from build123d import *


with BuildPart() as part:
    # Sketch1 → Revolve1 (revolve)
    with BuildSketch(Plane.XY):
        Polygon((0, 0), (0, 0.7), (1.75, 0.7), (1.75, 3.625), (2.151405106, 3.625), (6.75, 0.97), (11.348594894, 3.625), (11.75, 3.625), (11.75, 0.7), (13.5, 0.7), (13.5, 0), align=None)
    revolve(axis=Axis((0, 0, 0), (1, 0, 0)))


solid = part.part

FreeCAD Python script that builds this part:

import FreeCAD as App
import Part
import Sketcher

V = App.Vector
Q = App.Units.Quantity


def add_polygon(sketch, points):
    """Adds a closed chain of lines whose ends are joined by coincident constraints."""
    first, n = sketch.GeometryCount, len(points)
    for a, b in zip(points, points[1:] + points[:1]):
        sketch.addGeometry(Part.LineSegment(App.Vector(*a, 0), App.Vector(*b, 0)), False)
    for i in range(n):
        sketch.addConstraint(Sketcher.Constraint("Coincident", first + i, 2, first + (i + 1) % n, 1))

doc = App.newDocument("Part")
body = doc.addObject("PartDesign::Body", "Body")

# Sketch on XY plane
sketch1 = body.newObject("Sketcher::SketchObject", "Sketch")
sketch1.AttachmentSupport = (doc.getObject("XY_Plane"), [""])
sketch1.MapMode = "FlatFace"
add_polygon(sketch1, [(0, 0.7), (0, 0), (13.5, 0), (13.5, 0.7), (11.75, 0.7), (11.75, 3.62), (11.35, 3.62), (6.75, 0.97), (2.15, 3.62), (1.75, 3.62), (1.75, 0.7)])  # lines 0-10
sketch1.addConstraint([
    Sketcher.Constraint("Vertical", 0),
    Sketcher.Constraint("Horizontal", 1),
    Sketcher.Constraint("Vertical", 2),
    Sketcher.Constraint("Horizontal", 3),
    Sketcher.Constraint("Vertical", 4),
    Sketcher.Constraint("Horizontal", 5),
    Sketcher.Constraint("Horizontal", 8),
    Sketcher.Constraint("Vertical", 9),
    Sketcher.Constraint("Horizontal", 10),
    Sketcher.Constraint("Coincident", 0, 2, -1, 1),
    Sketcher.Constraint("Horizontal", 5, 2, 7, 2),
    Sketcher.Constraint("Horizontal", 3, 2, 9, 2),
    Sketcher.Constraint("Equal", 5, 8),
    Sketcher.Constraint("Equal", 3, 10),
    Sketcher.Constraint("Equal", 6, 7),
    Sketcher.Constraint("Angle", 6, Q("-150 deg")),
    Sketcher.Constraint("DistanceX", 1, 1, 1, 2, 13.5),
    Sketcher.Constraint("DistanceY", 0, 2, 0, 1, 0.7),
    Sketcher.Constraint("DistanceX", 6, 2, 3, 2, 5.0),
    Sketcher.Constraint("Distance", 6, 5.31),
    Sketcher.Constraint("DistanceY", 4, 1, 4, 2, 2.925),
])
revolution = body.newObject("PartDesign::Revolution", "Revolution")
revolution.Profile = sketch1
revolution.ReferenceAxis = (sketch1, ["H_Axis"])
revolution.Angle = 360

doc.recompute()
